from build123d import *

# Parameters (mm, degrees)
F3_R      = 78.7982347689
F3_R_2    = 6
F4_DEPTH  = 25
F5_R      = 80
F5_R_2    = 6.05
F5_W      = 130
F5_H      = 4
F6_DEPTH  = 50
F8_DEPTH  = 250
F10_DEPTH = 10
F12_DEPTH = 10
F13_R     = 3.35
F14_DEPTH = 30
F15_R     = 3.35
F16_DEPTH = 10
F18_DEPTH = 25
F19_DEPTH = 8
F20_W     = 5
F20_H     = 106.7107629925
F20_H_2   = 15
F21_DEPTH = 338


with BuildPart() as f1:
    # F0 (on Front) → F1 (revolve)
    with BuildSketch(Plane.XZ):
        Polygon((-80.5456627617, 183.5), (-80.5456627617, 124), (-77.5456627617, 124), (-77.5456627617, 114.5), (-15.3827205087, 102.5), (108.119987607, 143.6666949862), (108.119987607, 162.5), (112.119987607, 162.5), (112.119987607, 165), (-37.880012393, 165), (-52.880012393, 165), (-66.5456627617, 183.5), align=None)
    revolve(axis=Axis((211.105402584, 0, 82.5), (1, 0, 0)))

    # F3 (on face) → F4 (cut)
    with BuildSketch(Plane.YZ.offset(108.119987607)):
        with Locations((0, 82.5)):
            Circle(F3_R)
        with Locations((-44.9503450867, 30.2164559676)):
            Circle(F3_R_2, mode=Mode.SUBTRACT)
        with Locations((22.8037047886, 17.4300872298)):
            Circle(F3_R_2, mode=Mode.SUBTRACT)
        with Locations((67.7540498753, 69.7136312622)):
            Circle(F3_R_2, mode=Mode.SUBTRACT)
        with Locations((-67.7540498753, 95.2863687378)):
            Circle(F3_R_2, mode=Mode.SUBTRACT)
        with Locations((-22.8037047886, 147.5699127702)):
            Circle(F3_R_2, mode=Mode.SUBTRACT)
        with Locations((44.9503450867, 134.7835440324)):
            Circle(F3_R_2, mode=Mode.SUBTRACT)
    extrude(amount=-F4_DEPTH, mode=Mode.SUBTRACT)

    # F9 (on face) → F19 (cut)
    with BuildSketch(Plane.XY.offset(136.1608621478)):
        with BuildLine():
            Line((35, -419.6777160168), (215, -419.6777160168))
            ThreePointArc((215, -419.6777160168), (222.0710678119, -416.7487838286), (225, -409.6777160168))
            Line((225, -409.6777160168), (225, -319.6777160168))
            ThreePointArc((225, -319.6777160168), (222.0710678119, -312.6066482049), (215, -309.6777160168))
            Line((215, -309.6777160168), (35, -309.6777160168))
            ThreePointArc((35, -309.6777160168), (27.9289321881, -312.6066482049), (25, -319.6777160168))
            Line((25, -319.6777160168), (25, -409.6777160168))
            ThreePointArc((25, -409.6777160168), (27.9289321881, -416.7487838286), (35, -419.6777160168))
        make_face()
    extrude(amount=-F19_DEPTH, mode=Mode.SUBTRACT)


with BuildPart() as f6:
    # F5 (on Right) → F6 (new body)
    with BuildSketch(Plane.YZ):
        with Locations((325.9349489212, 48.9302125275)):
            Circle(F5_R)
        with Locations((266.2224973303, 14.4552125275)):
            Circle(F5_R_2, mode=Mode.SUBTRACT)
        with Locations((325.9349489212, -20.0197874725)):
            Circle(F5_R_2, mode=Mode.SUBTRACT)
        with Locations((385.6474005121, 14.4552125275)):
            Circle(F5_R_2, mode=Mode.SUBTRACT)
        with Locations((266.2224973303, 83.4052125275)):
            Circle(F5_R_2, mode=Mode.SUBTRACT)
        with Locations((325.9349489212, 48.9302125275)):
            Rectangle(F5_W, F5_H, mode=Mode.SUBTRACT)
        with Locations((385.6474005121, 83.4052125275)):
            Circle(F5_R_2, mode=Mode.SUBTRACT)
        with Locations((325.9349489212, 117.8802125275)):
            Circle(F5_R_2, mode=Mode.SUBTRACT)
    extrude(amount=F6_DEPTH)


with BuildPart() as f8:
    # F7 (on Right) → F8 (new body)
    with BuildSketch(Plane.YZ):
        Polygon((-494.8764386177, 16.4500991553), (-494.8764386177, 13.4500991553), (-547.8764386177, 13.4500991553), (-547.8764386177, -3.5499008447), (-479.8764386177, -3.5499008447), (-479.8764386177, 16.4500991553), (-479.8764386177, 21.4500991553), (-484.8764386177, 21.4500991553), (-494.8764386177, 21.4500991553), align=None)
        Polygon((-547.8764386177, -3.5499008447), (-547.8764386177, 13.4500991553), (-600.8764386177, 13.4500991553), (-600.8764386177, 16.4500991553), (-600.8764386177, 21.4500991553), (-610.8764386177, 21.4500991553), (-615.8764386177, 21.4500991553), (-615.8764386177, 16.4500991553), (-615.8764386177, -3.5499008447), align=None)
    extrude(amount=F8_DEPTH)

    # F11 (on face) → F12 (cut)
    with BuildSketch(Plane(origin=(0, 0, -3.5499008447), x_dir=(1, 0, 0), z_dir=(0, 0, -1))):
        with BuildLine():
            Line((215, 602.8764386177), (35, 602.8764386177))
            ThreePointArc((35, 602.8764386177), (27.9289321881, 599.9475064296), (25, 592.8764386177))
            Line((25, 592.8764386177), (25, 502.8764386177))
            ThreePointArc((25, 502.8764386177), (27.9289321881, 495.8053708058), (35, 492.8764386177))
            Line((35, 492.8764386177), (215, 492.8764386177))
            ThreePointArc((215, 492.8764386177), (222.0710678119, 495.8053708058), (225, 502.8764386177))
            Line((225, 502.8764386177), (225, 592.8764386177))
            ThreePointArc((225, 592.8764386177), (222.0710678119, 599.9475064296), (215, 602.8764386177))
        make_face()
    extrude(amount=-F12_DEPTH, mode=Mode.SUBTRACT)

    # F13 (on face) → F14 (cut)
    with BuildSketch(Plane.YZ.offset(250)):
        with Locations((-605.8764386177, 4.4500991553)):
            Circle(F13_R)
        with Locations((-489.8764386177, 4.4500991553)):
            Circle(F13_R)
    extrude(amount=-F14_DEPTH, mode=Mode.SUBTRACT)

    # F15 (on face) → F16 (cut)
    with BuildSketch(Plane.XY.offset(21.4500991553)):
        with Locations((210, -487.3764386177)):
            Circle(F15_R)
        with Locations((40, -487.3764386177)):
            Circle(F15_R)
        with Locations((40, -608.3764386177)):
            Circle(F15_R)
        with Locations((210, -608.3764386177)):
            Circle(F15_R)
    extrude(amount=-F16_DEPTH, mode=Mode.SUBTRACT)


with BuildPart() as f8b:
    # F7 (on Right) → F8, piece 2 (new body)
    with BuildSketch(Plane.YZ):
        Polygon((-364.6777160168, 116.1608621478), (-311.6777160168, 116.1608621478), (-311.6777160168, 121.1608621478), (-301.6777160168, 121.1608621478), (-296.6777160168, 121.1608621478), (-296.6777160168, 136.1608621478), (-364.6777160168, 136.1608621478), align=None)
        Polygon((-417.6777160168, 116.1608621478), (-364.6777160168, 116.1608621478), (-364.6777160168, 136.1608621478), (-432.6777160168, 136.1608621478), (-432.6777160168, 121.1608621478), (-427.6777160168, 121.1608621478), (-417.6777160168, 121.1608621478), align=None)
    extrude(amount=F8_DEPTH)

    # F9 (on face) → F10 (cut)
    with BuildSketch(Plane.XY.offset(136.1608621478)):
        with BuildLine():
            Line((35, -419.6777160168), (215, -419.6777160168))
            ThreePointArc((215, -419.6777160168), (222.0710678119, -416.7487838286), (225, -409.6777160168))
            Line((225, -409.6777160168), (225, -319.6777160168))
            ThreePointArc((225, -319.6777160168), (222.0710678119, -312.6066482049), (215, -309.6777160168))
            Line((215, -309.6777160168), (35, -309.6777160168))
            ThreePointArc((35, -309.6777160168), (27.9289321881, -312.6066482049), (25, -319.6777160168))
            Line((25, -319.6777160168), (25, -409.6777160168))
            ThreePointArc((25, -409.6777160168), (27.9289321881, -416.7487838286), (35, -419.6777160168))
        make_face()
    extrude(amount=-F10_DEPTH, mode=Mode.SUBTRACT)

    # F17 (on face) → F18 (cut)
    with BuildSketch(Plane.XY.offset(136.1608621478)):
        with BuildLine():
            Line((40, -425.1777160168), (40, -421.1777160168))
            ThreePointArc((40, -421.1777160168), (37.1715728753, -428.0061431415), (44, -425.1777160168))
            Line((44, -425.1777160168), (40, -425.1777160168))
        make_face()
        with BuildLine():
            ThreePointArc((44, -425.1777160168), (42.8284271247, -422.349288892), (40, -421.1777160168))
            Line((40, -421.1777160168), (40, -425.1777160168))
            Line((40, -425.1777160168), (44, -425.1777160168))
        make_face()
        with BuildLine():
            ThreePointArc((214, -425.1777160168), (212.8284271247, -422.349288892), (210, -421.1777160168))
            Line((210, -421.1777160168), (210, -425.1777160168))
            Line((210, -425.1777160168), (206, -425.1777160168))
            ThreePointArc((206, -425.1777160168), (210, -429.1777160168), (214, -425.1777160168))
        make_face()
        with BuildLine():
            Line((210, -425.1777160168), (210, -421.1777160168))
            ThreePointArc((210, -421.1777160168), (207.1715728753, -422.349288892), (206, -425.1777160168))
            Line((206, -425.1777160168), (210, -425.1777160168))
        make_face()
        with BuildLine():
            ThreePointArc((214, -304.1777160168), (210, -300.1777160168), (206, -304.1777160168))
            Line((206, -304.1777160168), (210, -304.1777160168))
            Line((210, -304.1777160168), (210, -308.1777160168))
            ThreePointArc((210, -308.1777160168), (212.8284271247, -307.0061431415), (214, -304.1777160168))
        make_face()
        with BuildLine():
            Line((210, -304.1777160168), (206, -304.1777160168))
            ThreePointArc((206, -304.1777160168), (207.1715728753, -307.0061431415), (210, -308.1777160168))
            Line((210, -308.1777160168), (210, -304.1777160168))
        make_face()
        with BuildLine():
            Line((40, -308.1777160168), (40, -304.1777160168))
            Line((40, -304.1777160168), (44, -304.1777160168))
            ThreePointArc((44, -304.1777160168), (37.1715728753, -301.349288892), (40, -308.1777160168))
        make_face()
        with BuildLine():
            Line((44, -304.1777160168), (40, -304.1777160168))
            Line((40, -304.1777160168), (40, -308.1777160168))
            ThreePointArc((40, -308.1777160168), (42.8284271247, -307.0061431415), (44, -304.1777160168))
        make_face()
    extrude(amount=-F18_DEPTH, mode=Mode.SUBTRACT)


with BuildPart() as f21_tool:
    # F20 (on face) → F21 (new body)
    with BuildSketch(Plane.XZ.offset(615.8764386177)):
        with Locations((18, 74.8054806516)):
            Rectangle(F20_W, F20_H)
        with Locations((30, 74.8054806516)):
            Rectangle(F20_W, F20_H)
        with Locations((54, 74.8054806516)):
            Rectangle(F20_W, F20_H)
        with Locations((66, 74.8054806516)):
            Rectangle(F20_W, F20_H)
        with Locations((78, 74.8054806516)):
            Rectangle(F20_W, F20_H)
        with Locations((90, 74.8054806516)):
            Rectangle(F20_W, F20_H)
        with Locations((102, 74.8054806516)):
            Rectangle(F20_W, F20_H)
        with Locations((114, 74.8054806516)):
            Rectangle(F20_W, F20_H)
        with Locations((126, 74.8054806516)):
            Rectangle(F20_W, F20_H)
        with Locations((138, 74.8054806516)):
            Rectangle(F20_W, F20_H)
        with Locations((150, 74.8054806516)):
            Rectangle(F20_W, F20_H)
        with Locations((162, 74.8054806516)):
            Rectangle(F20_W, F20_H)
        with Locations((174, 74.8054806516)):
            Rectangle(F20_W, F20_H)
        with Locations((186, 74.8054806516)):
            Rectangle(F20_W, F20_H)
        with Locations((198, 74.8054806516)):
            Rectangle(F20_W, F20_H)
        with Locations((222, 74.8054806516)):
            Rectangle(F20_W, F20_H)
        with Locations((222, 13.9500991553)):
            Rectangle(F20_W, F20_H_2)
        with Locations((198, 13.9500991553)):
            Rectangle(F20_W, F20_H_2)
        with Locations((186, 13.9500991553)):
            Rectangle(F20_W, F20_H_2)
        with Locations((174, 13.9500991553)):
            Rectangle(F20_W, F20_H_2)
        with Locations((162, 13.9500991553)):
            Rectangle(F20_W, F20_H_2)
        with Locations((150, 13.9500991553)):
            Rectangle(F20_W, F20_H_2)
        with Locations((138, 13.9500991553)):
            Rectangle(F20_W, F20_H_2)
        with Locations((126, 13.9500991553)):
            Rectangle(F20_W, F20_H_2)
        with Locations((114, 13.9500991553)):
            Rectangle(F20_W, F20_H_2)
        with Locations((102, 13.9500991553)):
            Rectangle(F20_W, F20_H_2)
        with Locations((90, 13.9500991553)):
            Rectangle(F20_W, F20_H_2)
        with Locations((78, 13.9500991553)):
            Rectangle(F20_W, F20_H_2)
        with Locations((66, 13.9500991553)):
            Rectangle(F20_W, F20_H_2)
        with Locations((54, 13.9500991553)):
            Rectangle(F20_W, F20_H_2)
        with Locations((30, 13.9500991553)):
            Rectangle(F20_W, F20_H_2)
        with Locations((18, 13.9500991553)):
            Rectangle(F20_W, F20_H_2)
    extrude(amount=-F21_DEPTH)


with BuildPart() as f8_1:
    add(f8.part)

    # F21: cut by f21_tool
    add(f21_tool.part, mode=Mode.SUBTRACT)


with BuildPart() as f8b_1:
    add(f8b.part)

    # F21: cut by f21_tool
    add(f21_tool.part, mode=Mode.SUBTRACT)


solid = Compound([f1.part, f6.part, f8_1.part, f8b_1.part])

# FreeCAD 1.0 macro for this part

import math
import FreeCAD as App
import Part
import Sketcher
from FreeCAD import Vector
Q = App.Units.Quantity


def add_polygon(sketch, points):
    """Adds a closed chain of lines whose ends are joined by coincident constraints."""
    first, n = sketch.GeometryCount, len(points)
    for a, b in zip(points, points[1:] + points[:1]):
        sketch.addGeometry(Part.LineSegment(App.Vector(*a, 0), App.Vector(*b, 0)), False)
    for i in range(n):
        sketch.addConstraint(Sketcher.Constraint("Coincident", first + i, 2, first + (i + 1) % n, 1))

doc = App.newDocument("Part")
body = doc.addObject("PartDesign::Body", "Body")

sketch1 = body.newObject("Sketcher::SketchObject", "Sketch")
sketch1.AttachmentSupport = (doc.getObject("XZ_Plane"), [""])
sketch1.MapMode = "FlatFace"
add_polygon(sketch1, [(-80.5, 183.5), (-80.5, 124), (-77.5, 124), (-77.5, 114.5), (-15.4, 102.5), (108.1, 143.7), (108.1, 162.5), (112.1, 162.5), (112.1, 165), (-52.9, 165), (-66.5, 183.5)])
sketch1.addGeometry(Part.LineSegment(Vector(-80.5, 82.5, 0), Vector(112.1, 82.5, 0)), True)
sketch1.addConstraint([
    Sketcher.Constraint("Vertical", 0),
    Sketcher.Constraint("Horizontal", 1),
    Sketcher.Constraint("Vertical", 2),
    Sketcher.Constraint("Vertical", 5),
    Sketcher.Constraint("Horizontal", 6),
    Sketcher.Constraint("Vertical", 7),
    Sketcher.Constraint("Horizontal", 8),
    Sketcher.Constraint("Horizontal", 10),
    Sketcher.Constraint("Horizontal", 11),
    Sketcher.Constraint("Vertical", 10, 2, 11, 1),
    Sketcher.Constraint("Vertical", 7, 2, 11, 2),
    Sketcher.Constraint("DistanceX", 1, 1, 1, 2, Q("3 mm")),
    Sketcher.Constraint("DistanceX", 6, 1, 6, 2, Q("4 mm")),
    Sketcher.Constraint("DistanceX", 8, 2, 8, 1, Q("165 mm")),
    Sketcher.Constraint("DistanceX", 10, 2, 10, 1, Q("14 mm")),
    Sketcher.Constraint("Distance", 9, Q("23 mm")),
    Sketcher.Constraint("DistanceY", 0, 2, 0, 1, Q("59.5 mm")),
    Sketcher.Constraint("DistanceY", 2, 2, 2, 1, Q("9.5 mm")),
    Sketcher.Constraint("DistanceY", 7, 1, 7, 2, Q("2.5 mm")),
    Sketcher.Constraint("DistanceY", -1, 1, 0, 2, Q("124 mm")),
    Sketcher.Constraint("DistanceY", -1, 1, 7, 2, Q("165 mm")),
    Sketcher.Constraint("DistanceY", 3, 2, 2, 2, Q("12 mm")),
    Sketcher.Constraint("DistanceY", 11, 1, 2, 2, Q("32 mm")),
    Sketcher.Constraint("Distance", 4, Q("130.183008 mm")),
    Sketcher.Constraint("DistanceY", 5, 1, 5, 2, Q("18.833305 mm")),
    Sketcher.Constraint("DistanceX", 3, 2, -1, 1, Q("15.382721 mm")),
])
revolution = body.newObject("PartDesign::Revolution", "Revolution")
revolution.Profile = sketch1
revolution.ReferenceAxis = (sketch1, ["Axis0"])
revolution.Angle = 360

sketch2 = body.newObject("Sketcher::SketchObject", "Sketch001")
sketch2.AttachmentSupport = (doc.getObject("YZ_Plane"), [""])
sketch2.MapMode = "FlatFace"
sketch2.AttachmentOffset = App.Placement(Vector(0, 0, 108.119988), App.Rotation())
sketch2.addGeometry([
    Part.Circle(Vector(0, 82, 0), Vector(0, 0, 1), 79),
    Part.Circle(Vector(-45, 30, 0), Vector(0, 0, 1), 6),
    Part.Circle(Vector(23, 17, 0), Vector(0, 0, 1), 6),
    Part.Circle(Vector(68, 70, 0), Vector(0, 0, 1), 6),
    Part.Circle(Vector(-68, 95, 0), Vector(0, 0, 1), 6),
    Part.Circle(Vector(-23, 148, 0), Vector(0, 0, 1), 6),
    Part.Circle(Vector(45, 135, 0), Vector(0, 0, 1), 6),
], False)
sketch2.addConstraint([
    Sketcher.Constraint("Equal", 1, 2),
    Sketcher.Constraint("Equal", 2, 3),
    Sketcher.Constraint("Equal", 3, 4),
    Sketcher.Constraint("Equal", 4, 5),
    Sketcher.Constraint("Equal", 5, 6),
    Sketcher.Constraint("PointOnObject", 0, 3, -2),
    Sketcher.Constraint("Diameter", 1, Q("12 mm")),
    Sketcher.Constraint("DistanceY", -1, 1, 0, 3, Q("82.5 mm")),
    Sketcher.Constraint("Diameter", 0, Q("157.59647 mm")),
    Sketcher.Constraint("DistanceX", 4, 3, 3, 3, Q("135.5081 mm")),
    Sketcher.Constraint("DistanceX", -1, 1, 3, 3, Q("67.75405 mm")),
    Sketcher.Constraint("DistanceY", -1, 1, 3, 3, Q("69.713631 mm")),
    Sketcher.Constraint("DistanceY", -1, 1, 4, 3, Q("95.286369 mm")),
    Sketcher.Constraint("DistanceX", 1, 3, 2, 3, Q("67.75405 mm")),
    Sketcher.Constraint("DistanceY", 2, 3, 1, 3, Q("12.786369 mm")),
    Sketcher.Constraint("DistanceY", 2, 3, 4, 3, Q("77.856282 mm")),
    Sketcher.Constraint("DistanceX", 1, 3, 5, 3, Q("22.14664 mm")),
    Sketcher.Constraint("DistanceY", 3, 3, 5, 3, Q("77.856282 mm")),
    Sketcher.Constraint("DistanceX", 5, 3, 6, 3, Q("67.75405 mm")),
    Sketcher.Constraint("DistanceY", 6, 3, 5, 3, Q("12.786369 mm")),
    Sketcher.Constraint("DistanceX", 1, 3, -1, 1, Q("44.950345 mm")),
])
pocket1 = body.newObject("PartDesign::Pocket", "Pocket")
pocket1.Profile = sketch2
pocket1.Length = 25

sketch3 = body.newObject("Sketcher::SketchObject", "Sketch002")
sketch3.AttachmentSupport = (doc.getObject("XY_Plane"), [""])
sketch3.MapMode = "FlatFace"
sketch3.AttachmentOffset = App.Placement(Vector(0, 0, 136.160862), App.Rotation())
sketch3.addGeometry([
    Part.LineSegment(Vector(35, -420, 0), Vector(215, -420, 0)),
    Part.ArcOfCircle(Part.Circle(Vector(215, -410, 0), Vector(0, 0, 1), 10), math.radians(-90), math.radians(0)),
    Part.LineSegment(Vector(225, -410, 0), Vector(225, -320, 0)),
    Part.ArcOfCircle(Part.Circle(Vector(215, -320, 0), Vector(0, 0, 1), 10), math.radians(0), math.radians(90)),
    Part.LineSegment(Vector(215, -310, 0), Vector(35, -310, 0)),
    Part.ArcOfCircle(Part.Circle(Vector(35, -320, 0), Vector(0, 0, 1), 10), math.radians(90), math.radians(180)),
    Part.LineSegment(Vector(25, -320, 0), Vector(25, -410, 0)),
    Part.ArcOfCircle(Part.Circle(Vector(35, -410, 0), Vector(0, 0, 1), 10), math.radians(180), math.radians(270)),
], False)
sketch3.addConstraint([
    Sketcher.Constraint("Tangent", 0, 2, 1, 1),
    Sketcher.Constraint("Tangent", 1, 2, 2, 1),
    Sketcher.Constraint("Tangent", 2, 2, 3, 1),
    Sketcher.Constraint("Tangent", 3, 2, 4, 1),
    Sketcher.Constraint("Tangent", 4, 2, 5, 1),
    Sketcher.Constraint("Tangent", 5, 2, 6, 1),
    Sketcher.Constraint("Tangent", 6, 2, 7, 1),
    Sketcher.Constraint("Tangent", 7, 2, 0, 1),
    Sketcher.Constraint("Horizontal", 0),
    Sketcher.Constraint("Vertical", 2),
    Sketcher.Constraint("Horizontal", 4),
    Sketcher.Constraint("Vertical", 6),
    Sketcher.Constraint("Equal", 1, 3),
    Sketcher.Constraint("Equal", 3, 5),
    Sketcher.Constraint("Equal", 5, 7),
    Sketcher.Constraint("Radius", 1, Q("10 mm")),
    Sketcher.Constraint("DistanceX", 0, 1, 0, 2, Q("180 mm")),
    Sketcher.Constraint("DistanceY", 2, 1, 2, 2, Q("90 mm")),
    Sketcher.Constraint("DistanceX", -1, 1, 1, 3, Q("215 mm")),
    Sketcher.Constraint("DistanceY", 1, 3, -1, 1, Q("409.677716 mm")),
])
pocket2 = body.newObject("PartDesign::Pocket", "Pocket001")
pocket2.Profile = sketch3
pocket2.Length = 8
body2 = doc.addObject("PartDesign::Body", "Body001")

sketch4 = body2.newObject("Sketcher::SketchObject", "Sketch003")
sketch4.AttachmentSupport = (doc.getObject("YZ_Plane001"), [""])
sketch4.MapMode = "FlatFace"
sketch4.addGeometry(Part.Circle(Vector(325.9, 48.9, 0), Vector(0, 0, 1), 80), False)
sketch4.addGeometry(Part.Circle(Vector(325.9, -20, 0), Vector(0, 0, 1), 6), False)
sketch4.addGeometry(Part.Circle(Vector(266.2, 14.5, 0), Vector(0, 0, 1), 6), False)
add_polygon(sketch4, [(390.9, 46.9), (260.9, 46.9), (260.9, 50.9), (390.9, 50.9)])
sketch4.addGeometry(Part.Circle(Vector(385.6, 14.5, 0), Vector(0, 0, 1), 6), False)
sketch4.addGeometry(Part.Circle(Vector(266.2, 83.4, 0), Vector(0, 0, 1), 6), False)
sketch4.addGeometry(Part.Circle(Vector(325.9, 117.9, 0), Vector(0, 0, 1), 6), False)
sketch4.addGeometry(Part.Circle(Vector(385.6, 83.4, 0), Vector(0, 0, 1), 6), False)
sketch4.addConstraint([
    Sketcher.Constraint("Horizontal", 3),
    Sketcher.Constraint("Vertical", 4),
    Sketcher.Constraint("Horizontal", 5),
    Sketcher.Constraint("Vertical", 6),
    Sketcher.Constraint("Equal", 1, 2),
    Sketcher.Constraint("Equal", 2, 7),
    Sketcher.Constraint("Equal", 7, 8),
    Sketcher.Constraint("Equal", 8, 9),
    Sketcher.Constraint("Equal", 9, 10),
    Sketcher.Constraint("Horizontal", 2, 3, 7, 3),
    Sketcher.Constraint("Horizontal", 8, 3, 10, 3),
    Sketcher.Constraint("Vertical", 0, 3, 1, 3),
    Sketcher.Constraint("Vertical", 2, 3, 8, 3),
    Sketcher.Constraint("Vertical", 1, 3, 9, 3),
    Sketcher.Constraint("Vertical", 7, 3, 10, 3),
    Sketcher.Constraint("Diameter", 0, Q("160 mm")),
    Sketcher.Constraint("Diameter", 1, Q("12.1 mm")),
    Sketcher.Constraint("DistanceX", 3, 2, 3, 1, Q("130 mm")),
    Sketcher.Constraint("DistanceY", 4, 1, 4, 2, Q("4 mm")),
    Sketcher.Constraint("DistanceX", 3, 2, 0, 3, Q("65 mm")),
    Sketcher.Constraint("DistanceY", 3, 2, 0, 3, Q("2 mm")),
    Sketcher.Constraint("DistanceY", 1, 3, 9, 3, Q("137.9 mm")),
    Sketcher.Constraint("DistanceY", 1, 3, 0, 3, Q("68.95 mm")),
    Sketcher.Constraint("DistanceY", 2, 3, 8, 3, Q("68.95 mm")),
    Sketcher.Constraint("DistanceY", 2, 3, 0, 3, Q("34.475 mm")),
    Sketcher.Constraint("DistanceX", -1, 1, 7, 3, Q("385.647401 mm")),
    Sketcher.Constraint("DistanceX", -1, 1, 0, 3, Q("325.934949 mm")),
    Sketcher.Constraint("DistanceX", 2, 3, 0, 3, Q("59.712452 mm")),
    Sketcher.Constraint("DistanceY", -1, 1, 0, 3, Q("48.930213 mm")),
])
pad1 = body2.newObject("PartDesign::Pad", "Pad")
pad1.Profile = sketch4
pad1.Length = 50
body3 = doc.addObject("PartDesign::Body", "Body002")

sketch5 = body3.newObject("Sketcher::SketchObject", "Sketch004")
sketch5.AttachmentSupport = (doc.getObject("YZ_Plane002"), [""])
sketch5.MapMode = "FlatFace"
add_polygon(sketch5, [(-495, 13), (-601, 13), (-601, 21), (-616, 21), (-616, -4), (-480, -4), (-480, 21), (-495, 21)])
sketch5.addConstraint([
    Sketcher.Constraint("Horizontal", 0),
    Sketcher.Constraint("Vertical", 1),
    Sketcher.Constraint("Horizontal", 2),
    Sketcher.Constraint("Vertical", 3),
    Sketcher.Constraint("Horizontal", 4),
    Sketcher.Constraint("Vertical", 5),
    Sketcher.Constraint("Horizontal", 6),
    Sketcher.Constraint("Vertical", 7),
    Sketcher.Constraint("Horizontal", 2, 2, 5, 2),
    Sketcher.Constraint("Equal", 2, 6),
    Sketcher.Constraint("DistanceX", 0, 2, 0, 1, Q("106 mm")),
    Sketcher.Constraint("DistanceX", 2, 2, 2, 1, Q("15 mm")),
    Sketcher.Constraint("DistanceY", 1, 1, 1, 2, Q("8 mm")),
    Sketcher.Constraint("DistanceY", 3, 2, 3, 1, Q("25 mm")),
    Sketcher.Constraint("DistanceY", -1, 1, 0, 2, Q("13.450099 mm")),
    Sketcher.Constraint("DistanceX", 0, 2, -1, 1, Q("600.876439 mm")),
])
pad2 = body3.newObject("PartDesign::Pad", "Pad001")
pad2.Profile = sketch5
pad2.Length = 250

sketch6 = body3.newObject("Sketcher::SketchObject", "Sketch005")
sketch6.AttachmentSupport = (doc.getObject("XY_Plane002"), [""])
sketch6.MapMode = "FlatFace"
sketch6.AttachmentOffset = App.Placement(Vector(0, 0, -3.549901), App.Rotation())
sketch6.addGeometry([
    Part.LineSegment(Vector(215, -603, 0), Vector(35, -603, 0)),
    Part.ArcOfCircle(Part.Circle(Vector(35, -593, 0), Vector(0, 0, 1), 10), math.radians(180), math.radians(270)),
    Part.LineSegment(Vector(25, -593, 0), Vector(25, -503, 0)),
    Part.ArcOfCircle(Part.Circle(Vector(35, -503, 0), Vector(0, 0, 1), 10), math.radians(90), math.radians(180)),
    Part.LineSegment(Vector(35, -493, 0), Vector(215, -493, 0)),
    Part.ArcOfCircle(Part.Circle(Vector(215, -503, 0), Vector(0, 0, 1), 10), math.radians(0), math.radians(90)),
    Part.LineSegment(Vector(225, -503, 0), Vector(225, -593, 0)),
    Part.ArcOfCircle(Part.Circle(Vector(215, -593, 0), Vector(0, 0, 1), 10), math.radians(-90), math.radians(0)),
], False)
sketch6.addConstraint([
    Sketcher.Constraint("Tangent", 0, 2, 1, 2),
    Sketcher.Constraint("Tangent", 1, 1, 2, 1),
    Sketcher.Constraint("Tangent", 2, 2, 3, 2),
    Sketcher.Constraint("Tangent", 3, 1, 4, 1),
    Sketcher.Constraint("Tangent", 4, 2, 5, 2),
    Sketcher.Constraint("Tangent", 5, 1, 6, 1),
    Sketcher.Constraint("Tangent", 6, 2, 7, 2),
    Sketcher.Constraint("Tangent", 7, 1, 0, 1),
    Sketcher.Constraint("Horizontal", 0),
    Sketcher.Constraint("Vertical", 2),
    Sketcher.Constraint("Horizontal", 4),
    Sketcher.Constraint("Vertical", 6),
    Sketcher.Constraint("Equal", 1, 3),
    Sketcher.Constraint("Equal", 3, 5),
    Sketcher.Constraint("Equal", 5, 7),
    Sketcher.Constraint("Radius", 1, Q("10 mm")),
    Sketcher.Constraint("DistanceX", 0, 2, 0, 1, Q("180 mm")),
    Sketcher.Constraint("DistanceY", 2, 1, 2, 2, Q("90 mm")),
    Sketcher.Constraint("DistanceX", -1, 1, 1, 3, Q("35 mm")),
    Sketcher.Constraint("DistanceY", 1, 3, -1, 1, Q("592.876439 mm")),
])
pocket3 = body3.newObject("PartDesign::Pocket", "Pocket002")
pocket3.Profile = sketch6
pocket3.Length = 10
pocket3.Reversed = True

sketch7 = body3.newObject("Sketcher::SketchObject", "Sketch006")
sketch7.AttachmentSupport = (doc.getObject("YZ_Plane002"), [""])
sketch7.MapMode = "FlatFace"
sketch7.AttachmentOffset = App.Placement(Vector(0, 0, 250), App.Rotation())
sketch7.addGeometry([
    Part.Circle(Vector(-605.9, 4.5, 0), Vector(0, 0, 1), 3.4),
    Part.Circle(Vector(-489.9, 4.5, 0), Vector(0, 0, 1), 3.4),
], False)
sketch7.addConstraint([
    Sketcher.Constraint("Equal", 0, 1),
    Sketcher.Constraint("Horizontal", 0, 3, 1, 3),
    Sketcher.Constraint("Diameter", 0, Q("6.7 mm")),
    Sketcher.Constraint("DistanceX", 0, 3, 1, 3, Q("116 mm")),
    Sketcher.Constraint("DistanceY", -1, 1, 0, 3, Q("4.450099 mm")),
    Sketcher.Constraint("DistanceX", 0, 3, -1, 1, Q("605.876439 mm")),
])
pocket4 = body3.newObject("PartDesign::Pocket", "Pocket003")
pocket4.Profile = sketch7
pocket4.Length = 30

sketch8 = body3.newObject("Sketcher::SketchObject", "Sketch007")
sketch8.AttachmentSupport = (doc.getObject("XY_Plane002"), [""])
sketch8.MapMode = "FlatFace"
sketch8.AttachmentOffset = App.Placement(Vector(0, 0, 21.450099), App.Rotation())
sketch8.addGeometry([
    Part.Circle(Vector(210, -487.4, 0), Vector(0, 0, 1), 3.4),
    Part.Circle(Vector(40, -487.4, 0), Vector(0, 0, 1), 3.4),
    Part.Circle(Vector(40, -608.4, 0), Vector(0, 0, 1), 3.4),
    Part.Circle(Vector(210, -608.4, 0), Vector(0, 0, 1), 3.4),
], False)
sketch8.addConstraint([
    Sketcher.Constraint("Equal", 0, 1),
    Sketcher.Constraint("Equal", 1, 2),
    Sketcher.Constraint("Equal", 2, 3),
    Sketcher.Constraint("Horizontal", 0, 3, 1, 3),
    Sketcher.Constraint("Horizontal", 2, 3, 3, 3),
    Sketcher.Constraint("Vertical", 1, 3, 2, 3),
    Sketcher.Constraint("Vertical", 0, 3, 3, 3),
    Sketcher.Constraint("Diameter", 0, Q("6.7 mm")),
    Sketcher.Constraint("DistanceX", -1, 1, 0, 3, Q("210 mm")),
    Sketcher.Constraint("DistanceX", -1, 1, 1, 3, Q("40 mm")),
    Sketcher.Constraint("DistanceY", 2, 3, 1, 3, Q("121 mm")),
    Sketcher.Constraint("DistanceY", 0, 3, -1, 1, Q("487.376439 mm")),
])
pocket5 = body3.newObject("PartDesign::Pocket", "Pocket004")
pocket5.Profile = sketch8
pocket5.Length = 10
body4 = doc.addObject("PartDesign::Body", "Body003")

sketch9 = body4.newObject("Sketcher::SketchObject", "Sketch008")
sketch9.AttachmentSupport = (doc.getObject("YZ_Plane003"), [""])
sketch9.MapMode = "FlatFace"
add_polygon(sketch9, [(-312, 116), (-312, 121), (-297, 121), (-297, 136), (-433, 136), (-433, 121), (-418, 121), (-418, 116)])
sketch9.addConstraint([
    Sketcher.Constraint("Vertical", 0),
    Sketcher.Constraint("Horizontal", 1),
    Sketcher.Constraint("Vertical", 2),
    Sketcher.Constraint("Horizontal", 3),
    Sketcher.Constraint("Vertical", 4),
    Sketcher.Constraint("Horizontal", 5),
    Sketcher.Constraint("Vertical", 6),
    Sketcher.Constraint("Horizontal", 7),
    Sketcher.Constraint("Horizontal", 1, 2, 4, 2),
    Sketcher.Constraint("Equal", 1, 5),
    Sketcher.Constraint("Equal", 5, 2),
    Sketcher.Constraint("DistanceX", 1, 1, 1, 2, Q("15 mm")),
    Sketcher.Constraint("DistanceX", 3, 2, 3, 1, Q("136 mm")),
    Sketcher.Constraint("DistanceY", 0, 1, 0, 2, Q("5 mm")),
    Sketcher.Constraint("DistanceX", 0, 2, -1, 1, Q("311.677716 mm")),
    Sketcher.Constraint("DistanceY", -1, 1, 0, 2, Q("121.160862 mm")),
])
pad3 = body4.newObject("PartDesign::Pad", "Pad002")
pad3.Profile = sketch9
pad3.Length = 250

sketch10 = body4.newObject("Sketcher::SketchObject", "Sketch009")
sketch10.AttachmentSupport = (doc.getObject("XY_Plane003"), [""])
sketch10.MapMode = "FlatFace"
sketch10.AttachmentOffset = App.Placement(Vector(0, 0, 136.160862), App.Rotation())
sketch10.addGeometry([
    Part.LineSegment(Vector(35, -420, 0), Vector(215, -420, 0)),
    Part.ArcOfCircle(Part.Circle(Vector(215, -410, 0), Vector(0, 0, 1), 10), math.radians(-90), math.radians(0)),
    Part.LineSegment(Vector(225, -410, 0), Vector(225, -320, 0)),
    Part.ArcOfCircle(Part.Circle(Vector(215, -320, 0), Vector(0, 0, 1), 10), math.radians(0), math.radians(90)),
    Part.LineSegment(Vector(215, -310, 0), Vector(35, -310, 0)),
    Part.ArcOfCircle(Part.Circle(Vector(35, -320, 0), Vector(0, 0, 1), 10), math.radians(90), math.radians(180)),
    Part.LineSegment(Vector(25, -320, 0), Vector(25, -410, 0)),
    Part.ArcOfCircle(Part.Circle(Vector(35, -410, 0), Vector(0, 0, 1), 10), math.radians(180), math.radians(270)),
], False)
sketch10.addConstraint([
    Sketcher.Constraint("Tangent", 0, 2, 1, 1),
    Sketcher.Constraint("Tangent", 1, 2, 2, 1),
    Sketcher.Constraint("Tangent", 2, 2, 3, 1),
    Sketcher.Constraint("Tangent", 3, 2, 4, 1),
    Sketcher.Constraint("Tangent", 4, 2, 5, 1),
    Sketcher.Constraint("Tangent", 5, 2, 6, 1),
    Sketcher.Constraint("Tangent", 6, 2, 7, 1),
    Sketcher.Constraint("Tangent", 7, 2, 0, 1),
    Sketcher.Constraint("Horizontal", 0),
    Sketcher.Constraint("Vertical", 2),
    Sketcher.Constraint("Horizontal", 4),
    Sketcher.Constraint("Vertical", 6),
    Sketcher.Constraint("Equal", 1, 3),
    Sketcher.Constraint("Equal", 3, 5),
    Sketcher.Constraint("Equal", 5, 7),
    Sketcher.Constraint("Radius", 1, Q("10 mm")),
    Sketcher.Constraint("DistanceX", 0, 1, 0, 2, Q("180 mm")),
    Sketcher.Constraint("DistanceY", 2, 1, 2, 2, Q("90 mm")),
    Sketcher.Constraint("DistanceX", -1, 1, 1, 3, Q("215 mm")),
    Sketcher.Constraint("DistanceY", 1, 3, -1, 1, Q("409.677716 mm")),
])
pocket6 = body4.newObject("PartDesign::Pocket", "Pocket005")
pocket6.Profile = sketch10
pocket6.Length = 10

sketch11 = body4.newObject("Sketcher::SketchObject", "Sketch010")
sketch11.AttachmentSupport = (doc.getObject("XY_Plane003"), [""])
sketch11.MapMode = "FlatFace"
sketch11.AttachmentOffset = App.Placement(Vector(0, 0, 136.160862), App.Rotation())
sketch11.addGeometry([
    Part.ArcOfCircle(Part.Circle(Vector(40, -425.2, 0), Vector(0, 0, 1), 4), math.radians(90), math.radians(360)),
    Part.ArcOfCircle(Part.Circle(Vector(40, -425.2, 0), Vector(0, 0, 1), 4), math.radians(0), math.radians(90)),
    Part.ArcOfCircle(Part.Circle(Vector(210, -425.2, 0), Vector(0, 0, 1), 4), math.radians(0), math.radians(90)),
    Part.ArcOfCircle(Part.Circle(Vector(210, -425.2, 0), Vector(0, 0, 1), 4), math.radians(90), math.radians(180)),
    Part.ArcOfCircle(Part.Circle(Vector(210, -425.2, 0), Vector(0, 0, 1), 4), math.radians(180), math.radians(360)),
    Part.ArcOfCircle(Part.Circle(Vector(210, -304.2, 0), Vector(0, 0, 1), 4), math.radians(0), math.radians(180)),
    Part.ArcOfCircle(Part.Circle(Vector(210, -304.2, 0), Vector(0, 0, 1), 4), math.radians(180), math.radians(270)),
    Part.ArcOfCircle(Part.Circle(Vector(210, -304.2, 0), Vector(0, 0, 1), 4), math.radians(-90), math.radians(0)),
    Part.ArcOfCircle(Part.Circle(Vector(40, -304.2, 0), Vector(0, 0, 1), 4), math.radians(0), math.radians(270)),
    Part.ArcOfCircle(Part.Circle(Vector(40, -304.2, 0), Vector(0, 0, 1), 4), math.radians(-90), math.radians(0)),
], False)
sketch11.addConstraint([
    Sketcher.Constraint("Tangent", 0, 1, 1, 2),
    Sketcher.Constraint("Coincident", 1, 1, 0, 2),
    Sketcher.Constraint("Tangent", 2, 2, 3, 1),
    Sketcher.Constraint("Tangent", 3, 2, 4, 1),
    Sketcher.Constraint("Tangent", 4, 2, 2, 1),
    Sketcher.Constraint("Tangent", 5, 2, 6, 1),
    Sketcher.Constraint("Tangent", 6, 2, 7, 1),
    Sketcher.Constraint("Tangent", 7, 2, 5, 1),
    Sketcher.Constraint("Tangent", 8, 1, 9, 2),
    Sketcher.Constraint("Coincident", 9, 1, 8, 2),
    Sketcher.Constraint("Equal", 1, 2),
    Sketcher.Constraint("Equal", 4, 5),
    Sketcher.Constraint("Equal", 7, 8),
    Sketcher.Constraint("Horizontal", 1, 3, 2, 3),
    Sketcher.Constraint("Horizontal", 7, 3, 8, 3),
    Sketcher.Constraint("Horizontal", 4, 3, 1, 1),
    Sketcher.Constraint("Horizontal", 1, 1, 3, 2),
    Sketcher.Constraint("Horizontal", 3, 2, 4, 2),
    Sketcher.Constraint("Horizontal", 9, 3, 5, 2),
    Sketcher.Constraint("Horizontal", 5, 2, 7, 2),
    Sketcher.Constraint("Horizontal", 7, 2, 8, 1),
    Sketcher.Constraint("Vertical", 4, 3, 5, 3),
    Sketcher.Constraint("Vertical", 1, 3, 8, 3),
    Sketcher.Constraint("Vertical", 9, 3, 0, 1),
    Sketcher.Constraint("Vertical", 7, 3, 2, 2),
    Sketcher.Constraint("Vertical", 2, 2, 6, 2),
    Sketcher.Constraint("Vertical", 0, 1, 9, 1),
    Sketcher.Constraint("Radius", 0, Q("4 mm")),
    Sketcher.Constraint("DistanceX", -1, 1, 0, 3, Q("40 mm")),
    Sketcher.Constraint("DistanceX", -1, 1, 2, 3, Q("210 mm")),
    Sketcher.Constraint("DistanceY", 2, 3, 5, 3, Q("121 mm")),
    Sketcher.Constraint("DistanceY", 0, 3, -1, 1, Q("425.177716 mm")),
])
pocket7 = body4.newObject("PartDesign::Pocket", "Pocket006")
pocket7.Profile = sketch11
pocket7.Length = 25
body5 = doc.addObject("PartDesign::Body", "Body004")
body5.AllowCompound = True

sketch12 = body5.newObject("Sketcher::SketchObject", "Sketch011")
sketch12.AttachmentSupport = (doc.getObject("XZ_Plane004"), [""])
sketch12.MapMode = "FlatFace"
sketch12.AttachmentOffset = App.Placement(Vector(0, 0, 615.876439), App.Rotation())
add_polygon(sketch12, [(16, 128), (16, 6), (20, 6), (20, 128)])
add_polygon(sketch12, [(28, 128), (28, 6), (32, 6), (32, 128)])
add_polygon(sketch12, [(52, 128), (52, 6), (56, 6), (56, 128)])
add_polygon(sketch12, [(64, 128), (64, 6), (68, 6), (68, 128)])
add_polygon(sketch12, [(76, 128), (76, 6), (80, 6), (80, 128)])
add_polygon(sketch12, [(88, 128), (88, 6), (92, 6), (92, 128)])
add_polygon(sketch12, [(100, 128), (100, 6), (104, 6), (104, 128)])
add_polygon(sketch12, [(112, 128), (112, 6), (116, 6), (116, 128)])
add_polygon(sketch12, [(124, 128), (124, 6), (128, 6), (128, 128)])
add_polygon(sketch12, [(136, 128), (136, 6), (140, 6), (140, 128)])
add_polygon(sketch12, [(148, 128), (148, 6), (152, 6), (152, 128)])
add_polygon(sketch12, [(160, 128), (160, 6), (164, 6), (164, 128)])
add_polygon(sketch12, [(172, 128), (172, 6), (176, 6), (176, 128)])
add_polygon(sketch12, [(184, 128), (184, 6), (188, 6), (188, 128)])
add_polygon(sketch12, [(196, 128), (196, 6), (200, 6), (200, 128)])
add_polygon(sketch12, [(220, 128), (220, 6), (224, 6), (224, 128)])
sketch12.addConstraint([
    Sketcher.Constraint("Vertical", 0),
    Sketcher.Constraint("Horizontal", 1),
    Sketcher.Constraint("Vertical", 2),
    Sketcher.Constraint("Horizontal", 3),
    Sketcher.Constraint("Vertical", 4),
    Sketcher.Constraint("Horizontal", 5),
    Sketcher.Constraint("Vertical", 6),
    Sketcher.Constraint("Horizontal", 7),
    Sketcher.Constraint("Vertical", 8),
    Sketcher.Constraint("Horizontal", 9),
    Sketcher.Constraint("Vertical", 10),
    Sketcher.Constraint("Horizontal", 11),
    Sketcher.Constraint("Vertical", 12),
    Sketcher.Constraint("Horizontal", 13),
    Sketcher.Constraint("Vertical", 14),
    Sketcher.Constraint("Horizontal", 15),
    Sketcher.Constraint("Vertical", 16),
    Sketcher.Constraint("Horizontal", 17),
    Sketcher.Constraint("Vertical", 18),
    Sketcher.Constraint("Horizontal", 19),
    Sketcher.Constraint("Vertical", 20),
    Sketcher.Constraint("Horizontal", 21),
    Sketcher.Constraint("Vertical", 22),
    Sketcher.Constraint("Horizontal", 23),
    Sketcher.Constraint("Vertical", 24),
    Sketcher.Constraint("Horizontal", 25),
    Sketcher.Constraint("Vertical", 26),
    Sketcher.Constraint("Horizontal", 27),
    Sketcher.Constraint("Vertical", 28),
    Sketcher.Constraint("Horizontal", 29),
    Sketcher.Constraint("Vertical", 30),
    Sketcher.Constraint("Horizontal", 31),
    Sketcher.Constraint("Vertical", 32),
    Sketcher.Constraint("Horizontal", 33),
    Sketcher.Constraint("Vertical", 34),
    Sketcher.Constraint("Horizontal", 35),
    Sketcher.Constraint("Vertical", 36),
    Sketcher.Constraint("Horizontal", 37),
    Sketcher.Constraint("Vertical", 38),
    Sketcher.Constraint("Horizontal", 39),
    Sketcher.Constraint("Vertical", 40),
    Sketcher.Constraint("Horizontal", 41),
    Sketcher.Constraint("Vertical", 42),
    Sketcher.Constraint("Horizontal", 43),
    Sketcher.Constraint("Vertical", 44),
    Sketcher.Constraint("Horizontal", 45),
    Sketcher.Constraint("Vertical", 46),
    Sketcher.Constraint("Horizontal", 47),
    Sketcher.Constraint("Vertical", 48),
    Sketcher.Constraint("Horizontal", 49),
    Sketcher.Constraint("Vertical", 50),
    Sketcher.Constraint("Horizontal", 51),
    Sketcher.Constraint("Vertical", 52),
    Sketcher.Constraint("Horizontal", 53),
    Sketcher.Constraint("Vertical", 54),
    Sketcher.Constraint("Horizontal", 55),
    Sketcher.Constraint("Vertical", 56),
    Sketcher.Constraint("Horizontal", 57),
    Sketcher.Constraint("Vertical", 58),
    Sketcher.Constraint("Horizontal", 59),
    Sketcher.Constraint("Vertical", 60),
    Sketcher.Constraint("Horizontal", 61),
    Sketcher.Constraint("Vertical", 62),
    Sketcher.Constraint("Horizontal", 63),
    Sketcher.Constraint("Horizontal", 1, 2, 4, 2),
    Sketcher.Constraint("Horizontal", 3, 2, 6, 2),
    Sketcher.Constraint("Horizontal", 5, 2, 8, 2),
    Sketcher.Constraint("Horizontal", 7, 2, 10, 2),
    Sketcher.Constraint("Horizontal", 9, 2, 12, 2),
    Sketcher.Constraint("Horizontal", 11, 2, 14, 2),
    Sketcher.Constraint("Horizontal", 13, 2, 16, 2),
    Sketcher.Constraint("Horizontal", 15, 2, 18, 2),
    Sketcher.Constraint("Horizontal", 17, 2, 20, 2),
    Sketcher.Constraint("Horizontal", 19, 2, 22, 2),
    Sketcher.Constraint("Horizontal", 21, 2, 24, 2),
    Sketcher.Constraint("Horizontal", 23, 2, 26, 2),
    Sketcher.Constraint("Horizontal", 25, 2, 28, 2),
    Sketcher.Constraint("Horizontal", 27, 2, 30, 2),
    Sketcher.Constraint("Horizontal", 29, 2, 32, 2),
    Sketcher.Constraint("Horizontal", 31, 2, 34, 2),
    Sketcher.Constraint("Horizontal", 33, 2, 36, 2),
    Sketcher.Constraint("Horizontal", 35, 2, 38, 2),
    Sketcher.Constraint("Horizontal", 37, 2, 40, 2),
    Sketcher.Constraint("Horizontal", 39, 2, 42, 2),
    Sketcher.Constraint("Horizontal", 41, 2, 44, 2),
    Sketcher.Constraint("Horizontal", 43, 2, 46, 2),
    Sketcher.Constraint("Horizontal", 45, 2, 48, 2),
    Sketcher.Constraint("Horizontal", 47, 2, 50, 2),
    Sketcher.Constraint("Horizontal", 49, 2, 52, 2),
    Sketcher.Constraint("Horizontal", 51, 2, 54, 2),
    Sketcher.Constraint("Horizontal", 53, 2, 56, 2),
    Sketcher.Constraint("Horizontal", 55, 2, 58, 2),
    Sketcher.Constraint("Horizontal", 57, 2, 60, 2),
    Sketcher.Constraint("Horizontal", 59, 2, 62, 2),
    Sketcher.Constraint("Equal", 3, 5),
    Sketcher.Constraint("Equal", 7, 9),
    Sketcher.Constraint("Equal", 11, 13),
    Sketcher.Constraint("Equal", 15, 17),
    Sketcher.Constraint("Equal", 19, 21),
    Sketcher.Constraint("Equal", 23, 25),
    Sketcher.Constraint("Equal", 27, 29),
    Sketcher.Constraint("Equal", 31, 33),
    Sketcher.Constraint("Equal", 35, 37),
    Sketcher.Constraint("Equal", 39, 41),
    Sketcher.Constraint("Equal", 43, 45),
    Sketcher.Constraint("Equal", 47, 49),
    Sketcher.Constraint("Equal", 51, 53),
    Sketcher.Constraint("Equal", 55, 57),
    Sketcher.Constraint("Equal", 59, 61),
    Sketcher.Constraint("DistanceX", 1, 1, 1, 2, Q("5 mm")),
    Sketcher.Constraint("DistanceX", -1, 1, 0, 2, Q("15.5 mm")),
    Sketcher.Constraint("DistanceX", -1, 1, 4, 2, Q("27.5 mm")),
    Sketcher.Constraint("DistanceX", -1, 1, 8, 2, Q("51.5 mm")),
    Sketcher.Constraint("DistanceX", -1, 1, 12, 2, Q("63.5 mm")),
    Sketcher.Constraint("DistanceX", -1, 1, 16, 2, Q("75.5 mm")),
    Sketcher.Constraint("DistanceX", -1, 1, 20, 2, Q("87.5 mm")),
    Sketcher.Constraint("DistanceX", -1, 1, 24, 2, Q("99.5 mm")),
    Sketcher.Constraint("DistanceX", -1, 1, 28, 2, Q("111.5 mm")),
    Sketcher.Constraint("DistanceX", -1, 1, 32, 2, Q("123.5 mm")),
    Sketcher.Constraint("DistanceX", -1, 1, 36, 2, Q("135.5 mm")),
    Sketcher.Constraint("DistanceX", -1, 1, 40, 2, Q("147.5 mm")),
    Sketcher.Constraint("DistanceX", -1, 1, 44, 2, Q("159.5 mm")),
    Sketcher.Constraint("DistanceX", -1, 1, 48, 2, Q("171.5 mm")),
    Sketcher.Constraint("DistanceX", -1, 1, 52, 2, Q("183.5 mm")),
    Sketcher.Constraint("DistanceX", -1, 1, 56, 2, Q("195.5 mm")),
    Sketcher.Constraint("DistanceX", -1, 1, 60, 2, Q("219.5 mm")),
    Sketcher.Constraint("DistanceY", -1, 1, 0, 2, Q("6.450099 mm")),
    Sketcher.Constraint("DistanceY", 0, 2, 0, 1, Q("121.710763 mm")),
])
pad4 = body5.newObject("PartDesign::Pad", "Pad003")
pad4.Profile = sketch12
pad4.Length = 338
pad4.Reversed = True
doc.recompute()

body6 = doc.addObject("PartDesign::Body", "Body005")
body6.BaseFeature = body5
boolean = body3.newObject("PartDesign::Boolean", "Boolean")
boolean.Type = "Cut"
boolean.addObjects([body6])
doc.recompute()

boolean2 = body4.newObject("PartDesign::Boolean", "Boolean001")
boolean2.Type = "Cut"
boolean2.addObjects([body5])

doc.recompute()
